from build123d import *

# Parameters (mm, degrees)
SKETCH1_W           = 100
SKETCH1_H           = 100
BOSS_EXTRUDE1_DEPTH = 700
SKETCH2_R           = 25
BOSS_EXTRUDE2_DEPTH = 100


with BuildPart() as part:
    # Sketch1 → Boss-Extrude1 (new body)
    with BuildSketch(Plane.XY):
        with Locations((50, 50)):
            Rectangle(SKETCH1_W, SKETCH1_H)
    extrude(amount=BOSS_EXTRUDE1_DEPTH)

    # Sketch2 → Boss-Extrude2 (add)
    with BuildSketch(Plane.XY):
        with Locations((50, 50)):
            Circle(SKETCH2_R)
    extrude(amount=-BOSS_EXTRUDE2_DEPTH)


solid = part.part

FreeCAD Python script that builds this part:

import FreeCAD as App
import Part
import Sketcher

doc = App.newDocument("Part")
body = doc.addObject("PartDesign::Body", "Body")

# Sketch on XY plane
sketch1 = body.newObject("Sketcher::SketchObject", "Sketch")
sketch1.AttachmentSupport = (doc.getObject("XY_Plane"), [""])
sketch1.MapMode = "FlatFace"
sketch1.addGeometry(Part.LineSegment(App.Vector(0, 100, 0), App.Vector(0, 0, 0)), False)
sketch1.addGeometry(Part.LineSegment(App.Vector(0, 0, 0), App.Vector(100, 0, 0)), False)
sketch1.addGeometry(Part.LineSegment(App.Vector(100, 0, 0), App.Vector(100, 100, 0)), False)
sketch1.addGeometry(Part.LineSegment(App.Vector(100, 100, 0), App.Vector(0, 100, 0)), False)
sketch1.addConstraint(Sketcher.Constraint("Coincident", 0, 2, 1, 1))
sketch1.addConstraint(Sketcher.Constraint("Coincident", 1, 2, 2, 1))
sketch1.addConstraint(Sketcher.Constraint("Coincident", 2, 2, 3, 1))
sketch1.addConstraint(Sketcher.Constraint("Coincident", 3, 2, 0, 1))
sketch1.addConstraint(Sketcher.Constraint("Vertical", 0))
sketch1.addConstraint(Sketcher.Constraint("Horizontal", 1))
sketch1.addConstraint(Sketcher.Constraint("Vertical", 2))
sketch1.addConstraint(Sketcher.Constraint("Horizontal", 3))
sketch1.addConstraint(Sketcher.Constraint("Coincident", 0, 2, -1, 1))
sketch1.addConstraint(Sketcher.Constraint("Equal", 3, 0))
sketch1.addConstraint(Sketcher.Constraint("DistanceX", 1, 1, 1, 2, 100.0))
pad1 = body.newObject("PartDesign::Pad", "Pad")
pad1.Profile = sketch1
pad1.Length = 700

# Sketch on XY plane
sketch2 = body.newObject("Sketcher::SketchObject", "Sketch001")
sketch2.AttachmentSupport = (doc.getObject("XY_Plane"), [""])
sketch2.MapMode = "FlatFace"
sketch2.addGeometry(Part.Circle(App.Vector(50, 50, 0), App.Vector(0, 0, 1), 25), False)
sketch2.addConstraint(Sketcher.Constraint("Diameter", 0, 50.0))
sketch2.addConstraint(Sketcher.Constraint("DistanceX", -1, 1, 0, 3, 50.0))
sketch2.addConstraint(Sketcher.Constraint("DistanceY", -1, 1, 0, 3, 50.0))
pad2 = body.newObject("PartDesign::Pad", "Pad001")
pad2.Profile = sketch2
pad2.Length = 100
pad2.Reversed = True

doc.recompute()
